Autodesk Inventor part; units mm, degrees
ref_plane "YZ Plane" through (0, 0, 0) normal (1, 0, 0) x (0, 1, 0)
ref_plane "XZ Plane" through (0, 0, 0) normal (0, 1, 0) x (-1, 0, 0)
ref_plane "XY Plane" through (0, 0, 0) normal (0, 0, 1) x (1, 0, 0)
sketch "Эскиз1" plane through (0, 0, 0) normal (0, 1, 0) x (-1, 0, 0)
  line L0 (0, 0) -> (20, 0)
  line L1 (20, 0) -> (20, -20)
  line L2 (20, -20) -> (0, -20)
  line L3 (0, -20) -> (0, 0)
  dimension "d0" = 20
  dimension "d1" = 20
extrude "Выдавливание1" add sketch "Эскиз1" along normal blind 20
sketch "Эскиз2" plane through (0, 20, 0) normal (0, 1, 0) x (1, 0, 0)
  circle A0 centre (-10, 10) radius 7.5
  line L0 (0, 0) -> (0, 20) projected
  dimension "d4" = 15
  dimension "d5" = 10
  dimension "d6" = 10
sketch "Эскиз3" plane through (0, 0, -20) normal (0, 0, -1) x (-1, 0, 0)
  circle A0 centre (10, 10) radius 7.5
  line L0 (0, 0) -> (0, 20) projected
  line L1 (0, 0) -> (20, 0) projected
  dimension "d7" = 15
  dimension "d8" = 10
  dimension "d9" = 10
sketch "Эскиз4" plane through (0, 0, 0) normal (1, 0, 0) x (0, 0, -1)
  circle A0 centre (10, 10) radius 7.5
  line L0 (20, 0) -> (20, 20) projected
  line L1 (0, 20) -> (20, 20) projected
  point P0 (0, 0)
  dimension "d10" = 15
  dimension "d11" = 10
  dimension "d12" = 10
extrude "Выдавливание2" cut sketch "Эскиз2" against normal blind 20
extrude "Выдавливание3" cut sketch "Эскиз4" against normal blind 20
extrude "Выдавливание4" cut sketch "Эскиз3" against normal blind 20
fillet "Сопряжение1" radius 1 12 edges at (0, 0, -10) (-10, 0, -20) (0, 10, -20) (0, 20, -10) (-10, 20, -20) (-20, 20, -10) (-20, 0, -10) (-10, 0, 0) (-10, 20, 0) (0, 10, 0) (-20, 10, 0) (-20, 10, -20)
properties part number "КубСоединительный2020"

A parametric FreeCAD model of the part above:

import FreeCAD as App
import Part
import Sketcher


def edges_at(feature, points):
    """Names of the edges that pass closest to the given points."""
    edges = feature.Shape.Edges
    near = lambda p: min(range(len(edges)), key=lambda i: edges[i].distToShape(Part.Vertex(*p))[0])
    return sorted({f"Edge{near(p) + 1}" for p in points})


def add_polygon(sketch, points):
    """Adds a closed chain of lines whose ends are joined by coincident constraints."""
    first, n = sketch.GeometryCount, len(points)
    for a, b in zip(points, points[1:] + points[:1]):
        sketch.addGeometry(Part.LineSegment(App.Vector(*a, 0), App.Vector(*b, 0)), False)
    for i in range(n):
        sketch.addConstraint(Sketcher.Constraint("Coincident", first + i, 2, first + (i + 1) % n, 1))

doc = App.newDocument("Part")
params = doc.addObject("Spreadsheet::Sheet", "Params")
for row, (alias, value) in enumerate([
    ("sketch1_width", "20 mm"),
    ("pad1_length", "20 mm"),
    ("sketch2_diameter", "15 mm"),
    ("pocket1_length", "20 mm"),
    ("sketch3_diameter", "15 mm"),
    ("pocket2_length", "20 mm"),
    ("sketch4_diameter", "15 mm"),
    ("pocket3_length", "20 mm"),
    ("fillet_radius", "1 mm"),
], start=1):
    params.set(f"A{row}", alias)
    params.set(f"B{row}", "=" + value)
    params.setAlias(f"B{row}", alias)

body = doc.addObject("PartDesign::Body", "Body")

sketch1 = body.newObject("Sketcher::SketchObject", "Sketch")
sketch1.AttachmentSupport = (doc.getObject("XZ_Plane"), [""])
sketch1.MapMode = "FlatFace"
add_polygon(sketch1, [(-20, 0), (0, 0), (0, -20), (-20, -20)])
sketch1.addConstraint(Sketcher.Constraint("Horizontal", 0))
sketch1.addConstraint(Sketcher.Constraint("Vertical", 1))
sketch1.addConstraint(Sketcher.Constraint("Horizontal", 2))
sketch1.addConstraint(Sketcher.Constraint("Vertical", 3))
sketch1.addConstraint(Sketcher.Constraint("Coincident", 0, 2, -1, 1))
sketch1.addConstraint(Sketcher.Constraint("Equal", 2, 1))
sketch1.addConstraint(Sketcher.Constraint("DistanceX", 0, 1, 0, 2, 20.0))
sketch1.setExpression("Constraints[10]", "Params.sketch1_width")
pad1 = body.newObject("PartDesign::Pad", "Pad")
pad1.Profile = sketch1
pad1.setExpression("Length", "Params.pad1_length")
pad1.Reversed = True

sketch2 = body.newObject("Sketcher::SketchObject", "Sketch001")
sketch2.AttachmentSupport = (doc.getObject("XZ_Plane"), [""])
sketch2.MapMode = "FlatFace"
sketch2.AttachmentOffset = App.Placement(App.Vector(0, 0, -20), App.Rotation())
sketch2.addGeometry(Part.Circle(App.Vector(-10, -10, 0), App.Vector(0, 0, 1), 8), False)
sketch2.addConstraint(Sketcher.Constraint("Diameter", 0, 15.0))
sketch2.addConstraint(Sketcher.Constraint("DistanceX", 0, 3, -1, 1, 10.0))
sketch2.addConstraint(Sketcher.Constraint("DistanceY", 0, 3, -1, 1, 10.0))
sketch2.setExpression("Constraints[0]", "Params.sketch2_diameter")
pocket1 = body.newObject("PartDesign::Pocket", "Pocket")
pocket1.Profile = sketch2
pocket1.setExpression("Length", "Params.pocket1_length")
pocket1.Reversed = True

sketch3 = body.newObject("Sketcher::SketchObject", "Sketch002")
sketch3.AttachmentSupport = (doc.getObject("YZ_Plane"), [""])
sketch3.MapMode = "FlatFace"
sketch3.addGeometry(Part.Circle(App.Vector(10, -10, 0), App.Vector(0, 0, 1), 8), False)
sketch3.addConstraint(Sketcher.Constraint("Diameter", 0, 15.0))
sketch3.addConstraint(Sketcher.Constraint("DistanceX", -1, 1, 0, 3, 10.0))
sketch3.addConstraint(Sketcher.Constraint("DistanceY", 0, 3, -1, 1, 10.0))
sketch3.setExpression("Constraints[0]", "Params.sketch3_diameter")
pocket2 = body.newObject("PartDesign::Pocket", "Pocket001")
pocket2.Profile = sketch3
pocket2.setExpression("Length", "Params.pocket2_length")

sketch4 = body.newObject("Sketcher::SketchObject", "Sketch003")
sketch4.AttachmentSupport = (doc.getObject("XY_Plane"), [""])
sketch4.MapMode = "FlatFace"
sketch4.AttachmentOffset = App.Placement(App.Vector(0, 0, -20), App.Rotation())
sketch4.addGeometry(Part.Circle(App.Vector(-10, 10, 0), App.Vector(0, 0, 1), 8), False)
sketch4.addConstraint(Sketcher.Constraint("Diameter", 0, 15.0))
sketch4.addConstraint(Sketcher.Constraint("DistanceX", 0, 3, -1, 1, 10.0))
sketch4.addConstraint(Sketcher.Constraint("DistanceY", -1, 1, 0, 3, 10.0))
sketch4.setExpression("Constraints[0]", "Params.sketch4_diameter")
pocket3 = body.newObject("PartDesign::Pocket", "Pocket002")
pocket3.Profile = sketch4
pocket3.setExpression("Length", "Params.pocket3_length")
pocket3.Reversed = True
doc.recompute()

fillet = body.newObject("PartDesign::Fillet", "Fillet")
fillet.Base = (pocket3, edges_at(pocket3, [
    (0, 0, -10),
    (-10, 0, -20),
    (0, 10, -20),
    (0, 20, -10),
    (-10, 20, -20),
    (-20, 20, -10),
    (-20, 0, -10),
    (-10, 0, 0),
    (-10, 20, 0),
    (0, 10, 0),
    (-20, 10, 0),
    (-20, 10, -20),
]))
fillet.setExpression("Radius", "Params.fillet_radius")

doc.recompute()
